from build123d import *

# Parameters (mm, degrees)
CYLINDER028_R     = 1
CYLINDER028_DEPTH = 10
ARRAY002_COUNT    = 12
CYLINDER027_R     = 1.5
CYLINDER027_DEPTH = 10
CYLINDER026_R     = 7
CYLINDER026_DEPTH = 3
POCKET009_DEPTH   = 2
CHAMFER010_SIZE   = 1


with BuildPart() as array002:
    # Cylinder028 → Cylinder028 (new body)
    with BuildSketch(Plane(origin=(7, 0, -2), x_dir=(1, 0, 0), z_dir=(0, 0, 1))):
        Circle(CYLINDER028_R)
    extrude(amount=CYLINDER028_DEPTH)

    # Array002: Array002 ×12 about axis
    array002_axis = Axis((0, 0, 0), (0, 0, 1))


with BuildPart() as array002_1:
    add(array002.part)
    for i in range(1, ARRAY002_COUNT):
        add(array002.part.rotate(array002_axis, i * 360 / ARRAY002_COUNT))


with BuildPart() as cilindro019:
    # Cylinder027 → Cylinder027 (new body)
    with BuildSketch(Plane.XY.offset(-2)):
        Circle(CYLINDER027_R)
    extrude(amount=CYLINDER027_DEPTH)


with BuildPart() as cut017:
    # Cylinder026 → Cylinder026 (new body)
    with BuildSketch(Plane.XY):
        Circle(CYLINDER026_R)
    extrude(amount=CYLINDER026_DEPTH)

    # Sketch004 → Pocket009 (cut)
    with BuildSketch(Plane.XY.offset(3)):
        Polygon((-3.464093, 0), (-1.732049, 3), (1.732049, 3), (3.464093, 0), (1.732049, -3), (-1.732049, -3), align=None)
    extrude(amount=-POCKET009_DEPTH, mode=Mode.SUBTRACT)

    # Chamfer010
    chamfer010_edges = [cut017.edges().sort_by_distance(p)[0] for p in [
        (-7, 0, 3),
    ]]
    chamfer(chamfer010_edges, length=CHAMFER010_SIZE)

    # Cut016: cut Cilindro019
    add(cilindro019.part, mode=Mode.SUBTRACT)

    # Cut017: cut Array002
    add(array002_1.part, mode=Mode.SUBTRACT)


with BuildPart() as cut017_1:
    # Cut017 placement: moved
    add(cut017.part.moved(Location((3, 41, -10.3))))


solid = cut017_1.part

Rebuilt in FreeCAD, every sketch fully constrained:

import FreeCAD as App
import Part
import Sketcher
from FreeCAD import Vector


def edges_at(feature, points):
    """Names of the edges that pass closest to the given points."""
    edges = feature.Shape.Edges
    near = lambda p: min(range(len(edges)), key=lambda i: edges[i].distToShape(Part.Vertex(*p))[0])
    return sorted({f"Edge{near(p) + 1}" for p in points})

doc = App.newDocument("Part")
body = doc.addObject("PartDesign::Body", "Body")

sketch1 = doc.addObject("Sketcher::SketchObject", "Sketch")
body.addObject(sketch1)
sketch1.AttachmentSupport = (doc.XY_Plane, [""])
sketch1.MapMode = "FlatFace"
sketch1.AttachmentOffset = App.Placement(Vector(0, 0, -2), App.Rotation())
sketch1.addGeometry(Part.Circle(Vector(7, 0, 0), Vector(0, 0, 1), 1), False)
sketch1.addConstraint([
    Sketcher.Constraint("PointOnObject", 0, 3, -1),
    Sketcher.Constraint("Diameter", 0, 2.0),
    Sketcher.Constraint("DistanceX", -1, 1, 0, 3, 7.0),
])
pad1 = doc.addObject("PartDesign::Pad", "Pad")
body.addObject(pad1)
pad1.Profile = sketch1
pad1.Length = 10
body2 = doc.addObject("PartDesign::Body", "Body001")
body2.AllowCompound = True
doc.recompute()

body2.BaseFeature = body
doc.recompute()

body3 = doc.addObject("PartDesign::Body", "Body002")
body3.BaseFeature = body
body3.Placement = App.Placement(Vector(0, 0, 0), App.Rotation(Vector(0, 0, 1), 30))
boolean = doc.addObject("PartDesign::Boolean", "Boolean")
body2.addObject(boolean)
boolean.Type = "Fuse"
boolean.addObjects([body3])
doc.recompute()

body4 = doc.addObject("PartDesign::Body", "Body003")
body4.BaseFeature = body
body4.Placement = App.Placement(Vector(0, 0, 0), App.Rotation(Vector(0, 0, 1), 60))
boolean2 = doc.addObject("PartDesign::Boolean", "Boolean001")
body2.addObject(boolean2)
boolean2.Type = "Fuse"
boolean2.addObjects([body4])
doc.recompute()

body5 = doc.addObject("PartDesign::Body", "Body004")
body5.BaseFeature = body
body5.Placement = App.Placement(Vector(0, 0, 0), App.Rotation(Vector(0, 0, 1), 90))
boolean3 = doc.addObject("PartDesign::Boolean", "Boolean002")
body2.addObject(boolean3)
boolean3.Type = "Fuse"
boolean3.addObjects([body5])
doc.recompute()

body6 = doc.addObject("PartDesign::Body", "Body005")
body6.BaseFeature = body
body6.Placement = App.Placement(Vector(0, 0, 0), App.Rotation(Vector(0, 0, 1), 120))
boolean4 = doc.addObject("PartDesign::Boolean", "Boolean003")
body2.addObject(boolean4)
boolean4.Type = "Fuse"
boolean4.addObjects([body6])
doc.recompute()

body7 = doc.addObject("PartDesign::Body", "Body006")
body7.BaseFeature = body
body7.Placement = App.Placement(Vector(0, 0, 0), App.Rotation(Vector(0, 0, 1), 150))
boolean5 = doc.addObject("PartDesign::Boolean", "Boolean004")
body2.addObject(boolean5)
boolean5.Type = "Fuse"
boolean5.addObjects([body7])
doc.recompute()

body8 = doc.addObject("PartDesign::Body", "Body007")
body8.BaseFeature = body
body8.Placement = App.Placement(Vector(0, 0, 0), App.Rotation(Vector(0, 0, 1), 180))
boolean6 = doc.addObject("PartDesign::Boolean", "Boolean005")
body2.addObject(boolean6)
boolean6.Type = "Fuse"
boolean6.addObjects([body8])
doc.recompute()

body9 = doc.addObject("PartDesign::Body", "Body008")
body9.BaseFeature = body
body9.Placement = App.Placement(Vector(0, 0, 0), App.Rotation(Vector(0, 0, 1), 210))
boolean7 = doc.addObject("PartDesign::Boolean", "Boolean006")
body2.addObject(boolean7)
boolean7.Type = "Fuse"
boolean7.addObjects([body9])
doc.recompute()

body10 = doc.addObject("PartDesign::Body", "Body009")
body10.BaseFeature = body
body10.Placement = App.Placement(Vector(0, 0, 0), App.Rotation(Vector(0, 0, 1), 240))
boolean8 = doc.addObject("PartDesign::Boolean", "Boolean007")
body2.addObject(boolean8)
boolean8.Type = "Fuse"
boolean8.addObjects([body10])
doc.recompute()

body11 = doc.addObject("PartDesign::Body", "Body010")
body11.BaseFeature = body
body11.Placement = App.Placement(Vector(0, 0, 0), App.Rotation(Vector(0, 0, 1), 270))
boolean9 = doc.addObject("PartDesign::Boolean", "Boolean008")
body2.addObject(boolean9)
boolean9.Type = "Fuse"
boolean9.addObjects([body11])
doc.recompute()

body12 = doc.addObject("PartDesign::Body", "Body011")
body12.BaseFeature = body
body12.Placement = App.Placement(Vector(0, 0, 0), App.Rotation(Vector(0, 0, 1), 300))
boolean10 = doc.addObject("PartDesign::Boolean", "Boolean009")
body2.addObject(boolean10)
boolean10.Type = "Fuse"
boolean10.addObjects([body12])
doc.recompute()

body.Placement = App.Placement(Vector(0, 0, 0), App.Rotation(Vector(0, 0, 1), 330))
boolean11 = doc.addObject("PartDesign::Boolean", "Boolean010")
body2.addObject(boolean11)
boolean11.Type = "Fuse"
boolean11.addObjects([body])
body13 = doc.addObject("PartDesign::Body", "Body012")

sketch2 = doc.addObject("Sketcher::SketchObject", "Sketch001")
body13.addObject(sketch2)
sketch2.AttachmentSupport = (doc.getObject("XY_Plane012"), [""])
sketch2.MapMode = "FlatFace"
sketch2.AttachmentOffset = App.Placement(Vector(0, 0, -2), App.Rotation())
sketch2.addGeometry(Part.Circle(Vector(0, 0, 0), Vector(0, 0, 1), 1.5), False)
sketch2.addConstraint([
    Sketcher.Constraint("Coincident", 0, 3, -1, 1),
    Sketcher.Constraint("Diameter", 0, 3.0),
])
pad2 = doc.addObject("PartDesign::Pad", "Pad001")
body13.addObject(pad2)
pad2.Profile = sketch2
pad2.Length = 10
body14 = doc.addObject("PartDesign::Body", "Body013")

sketch3 = doc.addObject("Sketcher::SketchObject", "Sketch002")
body14.addObject(sketch3)
sketch3.AttachmentSupport = (doc.getObject("XY_Plane013"), [""])
sketch3.MapMode = "FlatFace"
sketch3.addGeometry(Part.Circle(Vector(0, 0, 0), Vector(0, 0, 1), 7), False)
sketch3.addConstraint([
    Sketcher.Constraint("Coincident", 0, 3, -1, 1),
    Sketcher.Constraint("Diameter", 0, 14.0),
])
pad3 = doc.addObject("PartDesign::Pad", "Pad002")
body14.addObject(pad3)
pad3.Profile = sketch3
pad3.Length = 3

sketch4 = doc.addObject("Sketcher::SketchObject", "Sketch003")
body14.addObject(sketch4)
sketch4.AttachmentSupport = (doc.getObject("XY_Plane013"), [""])
sketch4.MapMode = "FlatFace"
sketch4.AttachmentOffset = App.Placement(Vector(0, 0, 3), App.Rotation())
sketch4.addGeometry([
    Part.LineSegment(Vector(-1.732049, 3, 0), Vector(-3.464093, 0, 0)),
    Part.LineSegment(Vector(-3.464093, 0, 0), Vector(-1.732049, -3, 0)),
    Part.LineSegment(Vector(-1.732049, -3, 0), Vector(1.732049, -3, 0)),
    Part.LineSegment(Vector(1.732049, -3, 0), Vector(3.464093, 0, 0)),
    Part.LineSegment(Vector(3.464093, 0, 0), Vector(1.732049, 3, 0)),
    Part.LineSegment(Vector(1.732049, 3, 0), Vector(-1.732049, 3, 0)),
], False)
sketch4.addConstraint([
    Sketcher.Constraint("Coincident", 0, 2, 1, 1),
    Sketcher.Constraint("Coincident", 1, 2, 2, 1),
    Sketcher.Constraint("Coincident", 2, 2, 3, 1),
    Sketcher.Constraint("Coincident", 3, 2, 4, 1),
    Sketcher.Constraint("Coincident", 4, 2, 5, 1),
    Sketcher.Constraint("Coincident", 5, 2, 0, 1),
    Sketcher.Constraint("Horizontal", 2),
    Sketcher.Constraint("Horizontal", 5),
    Sketcher.Constraint("Symmetric", 0, 2, 3, 2, -1, 1),
    Sketcher.Constraint("Symmetric", 1, 2, 4, 2, -1, 1),
    Sketcher.Constraint("PointOnObject", 0, 2, -1),
    Sketcher.Constraint("Parallel", 0, 3),
    Sketcher.Constraint("Vertical", 2, 2, 4, 2),
    Sketcher.Constraint("DistanceY", 1, 2, -1, 1, 3.0),
    Sketcher.Constraint("Distance", 0, 3.464098),
    Sketcher.Constraint("DistanceX", 2, 1, 2, 2, 3.464098),
])
pocket1 = doc.addObject("PartDesign::Pocket", "Pocket")
body14.addObject(pocket1)
pocket1.Profile = sketch4
pocket1.Length = 2
doc.recompute()

chamfer = doc.addObject("PartDesign::Chamfer", "Chamfer")
body14.addObject(chamfer)
chamfer.Base = (pocket1, edges_at(pocket1, [(-7, 0, 3)]))
chamfer.Size = 1
doc.recompute()

boolean12 = doc.addObject("PartDesign::Boolean", "Boolean011")
body14.addObject(boolean12)
boolean12.Type = "Cut"
boolean12.addObjects([body13])
doc.recompute()

boolean13 = doc.addObject("PartDesign::Boolean", "Boolean012")
body14.addObject(boolean13)
boolean13.Type = "Cut"
boolean13.addObjects([body2])
body15 = doc.addObject("PartDesign::Body", "Body014")
doc.recompute()

body14.Placement = App.Placement(Vector(3, 41, -10.3), App.Rotation(Vector(0, 0, 1), 0))
boolean14 = doc.addObject("PartDesign::Boolean", "Boolean013")
body15.addObject(boolean14)
boolean14.Type = "Fuse"
boolean14.addObjects([body14])

doc.recompute()
